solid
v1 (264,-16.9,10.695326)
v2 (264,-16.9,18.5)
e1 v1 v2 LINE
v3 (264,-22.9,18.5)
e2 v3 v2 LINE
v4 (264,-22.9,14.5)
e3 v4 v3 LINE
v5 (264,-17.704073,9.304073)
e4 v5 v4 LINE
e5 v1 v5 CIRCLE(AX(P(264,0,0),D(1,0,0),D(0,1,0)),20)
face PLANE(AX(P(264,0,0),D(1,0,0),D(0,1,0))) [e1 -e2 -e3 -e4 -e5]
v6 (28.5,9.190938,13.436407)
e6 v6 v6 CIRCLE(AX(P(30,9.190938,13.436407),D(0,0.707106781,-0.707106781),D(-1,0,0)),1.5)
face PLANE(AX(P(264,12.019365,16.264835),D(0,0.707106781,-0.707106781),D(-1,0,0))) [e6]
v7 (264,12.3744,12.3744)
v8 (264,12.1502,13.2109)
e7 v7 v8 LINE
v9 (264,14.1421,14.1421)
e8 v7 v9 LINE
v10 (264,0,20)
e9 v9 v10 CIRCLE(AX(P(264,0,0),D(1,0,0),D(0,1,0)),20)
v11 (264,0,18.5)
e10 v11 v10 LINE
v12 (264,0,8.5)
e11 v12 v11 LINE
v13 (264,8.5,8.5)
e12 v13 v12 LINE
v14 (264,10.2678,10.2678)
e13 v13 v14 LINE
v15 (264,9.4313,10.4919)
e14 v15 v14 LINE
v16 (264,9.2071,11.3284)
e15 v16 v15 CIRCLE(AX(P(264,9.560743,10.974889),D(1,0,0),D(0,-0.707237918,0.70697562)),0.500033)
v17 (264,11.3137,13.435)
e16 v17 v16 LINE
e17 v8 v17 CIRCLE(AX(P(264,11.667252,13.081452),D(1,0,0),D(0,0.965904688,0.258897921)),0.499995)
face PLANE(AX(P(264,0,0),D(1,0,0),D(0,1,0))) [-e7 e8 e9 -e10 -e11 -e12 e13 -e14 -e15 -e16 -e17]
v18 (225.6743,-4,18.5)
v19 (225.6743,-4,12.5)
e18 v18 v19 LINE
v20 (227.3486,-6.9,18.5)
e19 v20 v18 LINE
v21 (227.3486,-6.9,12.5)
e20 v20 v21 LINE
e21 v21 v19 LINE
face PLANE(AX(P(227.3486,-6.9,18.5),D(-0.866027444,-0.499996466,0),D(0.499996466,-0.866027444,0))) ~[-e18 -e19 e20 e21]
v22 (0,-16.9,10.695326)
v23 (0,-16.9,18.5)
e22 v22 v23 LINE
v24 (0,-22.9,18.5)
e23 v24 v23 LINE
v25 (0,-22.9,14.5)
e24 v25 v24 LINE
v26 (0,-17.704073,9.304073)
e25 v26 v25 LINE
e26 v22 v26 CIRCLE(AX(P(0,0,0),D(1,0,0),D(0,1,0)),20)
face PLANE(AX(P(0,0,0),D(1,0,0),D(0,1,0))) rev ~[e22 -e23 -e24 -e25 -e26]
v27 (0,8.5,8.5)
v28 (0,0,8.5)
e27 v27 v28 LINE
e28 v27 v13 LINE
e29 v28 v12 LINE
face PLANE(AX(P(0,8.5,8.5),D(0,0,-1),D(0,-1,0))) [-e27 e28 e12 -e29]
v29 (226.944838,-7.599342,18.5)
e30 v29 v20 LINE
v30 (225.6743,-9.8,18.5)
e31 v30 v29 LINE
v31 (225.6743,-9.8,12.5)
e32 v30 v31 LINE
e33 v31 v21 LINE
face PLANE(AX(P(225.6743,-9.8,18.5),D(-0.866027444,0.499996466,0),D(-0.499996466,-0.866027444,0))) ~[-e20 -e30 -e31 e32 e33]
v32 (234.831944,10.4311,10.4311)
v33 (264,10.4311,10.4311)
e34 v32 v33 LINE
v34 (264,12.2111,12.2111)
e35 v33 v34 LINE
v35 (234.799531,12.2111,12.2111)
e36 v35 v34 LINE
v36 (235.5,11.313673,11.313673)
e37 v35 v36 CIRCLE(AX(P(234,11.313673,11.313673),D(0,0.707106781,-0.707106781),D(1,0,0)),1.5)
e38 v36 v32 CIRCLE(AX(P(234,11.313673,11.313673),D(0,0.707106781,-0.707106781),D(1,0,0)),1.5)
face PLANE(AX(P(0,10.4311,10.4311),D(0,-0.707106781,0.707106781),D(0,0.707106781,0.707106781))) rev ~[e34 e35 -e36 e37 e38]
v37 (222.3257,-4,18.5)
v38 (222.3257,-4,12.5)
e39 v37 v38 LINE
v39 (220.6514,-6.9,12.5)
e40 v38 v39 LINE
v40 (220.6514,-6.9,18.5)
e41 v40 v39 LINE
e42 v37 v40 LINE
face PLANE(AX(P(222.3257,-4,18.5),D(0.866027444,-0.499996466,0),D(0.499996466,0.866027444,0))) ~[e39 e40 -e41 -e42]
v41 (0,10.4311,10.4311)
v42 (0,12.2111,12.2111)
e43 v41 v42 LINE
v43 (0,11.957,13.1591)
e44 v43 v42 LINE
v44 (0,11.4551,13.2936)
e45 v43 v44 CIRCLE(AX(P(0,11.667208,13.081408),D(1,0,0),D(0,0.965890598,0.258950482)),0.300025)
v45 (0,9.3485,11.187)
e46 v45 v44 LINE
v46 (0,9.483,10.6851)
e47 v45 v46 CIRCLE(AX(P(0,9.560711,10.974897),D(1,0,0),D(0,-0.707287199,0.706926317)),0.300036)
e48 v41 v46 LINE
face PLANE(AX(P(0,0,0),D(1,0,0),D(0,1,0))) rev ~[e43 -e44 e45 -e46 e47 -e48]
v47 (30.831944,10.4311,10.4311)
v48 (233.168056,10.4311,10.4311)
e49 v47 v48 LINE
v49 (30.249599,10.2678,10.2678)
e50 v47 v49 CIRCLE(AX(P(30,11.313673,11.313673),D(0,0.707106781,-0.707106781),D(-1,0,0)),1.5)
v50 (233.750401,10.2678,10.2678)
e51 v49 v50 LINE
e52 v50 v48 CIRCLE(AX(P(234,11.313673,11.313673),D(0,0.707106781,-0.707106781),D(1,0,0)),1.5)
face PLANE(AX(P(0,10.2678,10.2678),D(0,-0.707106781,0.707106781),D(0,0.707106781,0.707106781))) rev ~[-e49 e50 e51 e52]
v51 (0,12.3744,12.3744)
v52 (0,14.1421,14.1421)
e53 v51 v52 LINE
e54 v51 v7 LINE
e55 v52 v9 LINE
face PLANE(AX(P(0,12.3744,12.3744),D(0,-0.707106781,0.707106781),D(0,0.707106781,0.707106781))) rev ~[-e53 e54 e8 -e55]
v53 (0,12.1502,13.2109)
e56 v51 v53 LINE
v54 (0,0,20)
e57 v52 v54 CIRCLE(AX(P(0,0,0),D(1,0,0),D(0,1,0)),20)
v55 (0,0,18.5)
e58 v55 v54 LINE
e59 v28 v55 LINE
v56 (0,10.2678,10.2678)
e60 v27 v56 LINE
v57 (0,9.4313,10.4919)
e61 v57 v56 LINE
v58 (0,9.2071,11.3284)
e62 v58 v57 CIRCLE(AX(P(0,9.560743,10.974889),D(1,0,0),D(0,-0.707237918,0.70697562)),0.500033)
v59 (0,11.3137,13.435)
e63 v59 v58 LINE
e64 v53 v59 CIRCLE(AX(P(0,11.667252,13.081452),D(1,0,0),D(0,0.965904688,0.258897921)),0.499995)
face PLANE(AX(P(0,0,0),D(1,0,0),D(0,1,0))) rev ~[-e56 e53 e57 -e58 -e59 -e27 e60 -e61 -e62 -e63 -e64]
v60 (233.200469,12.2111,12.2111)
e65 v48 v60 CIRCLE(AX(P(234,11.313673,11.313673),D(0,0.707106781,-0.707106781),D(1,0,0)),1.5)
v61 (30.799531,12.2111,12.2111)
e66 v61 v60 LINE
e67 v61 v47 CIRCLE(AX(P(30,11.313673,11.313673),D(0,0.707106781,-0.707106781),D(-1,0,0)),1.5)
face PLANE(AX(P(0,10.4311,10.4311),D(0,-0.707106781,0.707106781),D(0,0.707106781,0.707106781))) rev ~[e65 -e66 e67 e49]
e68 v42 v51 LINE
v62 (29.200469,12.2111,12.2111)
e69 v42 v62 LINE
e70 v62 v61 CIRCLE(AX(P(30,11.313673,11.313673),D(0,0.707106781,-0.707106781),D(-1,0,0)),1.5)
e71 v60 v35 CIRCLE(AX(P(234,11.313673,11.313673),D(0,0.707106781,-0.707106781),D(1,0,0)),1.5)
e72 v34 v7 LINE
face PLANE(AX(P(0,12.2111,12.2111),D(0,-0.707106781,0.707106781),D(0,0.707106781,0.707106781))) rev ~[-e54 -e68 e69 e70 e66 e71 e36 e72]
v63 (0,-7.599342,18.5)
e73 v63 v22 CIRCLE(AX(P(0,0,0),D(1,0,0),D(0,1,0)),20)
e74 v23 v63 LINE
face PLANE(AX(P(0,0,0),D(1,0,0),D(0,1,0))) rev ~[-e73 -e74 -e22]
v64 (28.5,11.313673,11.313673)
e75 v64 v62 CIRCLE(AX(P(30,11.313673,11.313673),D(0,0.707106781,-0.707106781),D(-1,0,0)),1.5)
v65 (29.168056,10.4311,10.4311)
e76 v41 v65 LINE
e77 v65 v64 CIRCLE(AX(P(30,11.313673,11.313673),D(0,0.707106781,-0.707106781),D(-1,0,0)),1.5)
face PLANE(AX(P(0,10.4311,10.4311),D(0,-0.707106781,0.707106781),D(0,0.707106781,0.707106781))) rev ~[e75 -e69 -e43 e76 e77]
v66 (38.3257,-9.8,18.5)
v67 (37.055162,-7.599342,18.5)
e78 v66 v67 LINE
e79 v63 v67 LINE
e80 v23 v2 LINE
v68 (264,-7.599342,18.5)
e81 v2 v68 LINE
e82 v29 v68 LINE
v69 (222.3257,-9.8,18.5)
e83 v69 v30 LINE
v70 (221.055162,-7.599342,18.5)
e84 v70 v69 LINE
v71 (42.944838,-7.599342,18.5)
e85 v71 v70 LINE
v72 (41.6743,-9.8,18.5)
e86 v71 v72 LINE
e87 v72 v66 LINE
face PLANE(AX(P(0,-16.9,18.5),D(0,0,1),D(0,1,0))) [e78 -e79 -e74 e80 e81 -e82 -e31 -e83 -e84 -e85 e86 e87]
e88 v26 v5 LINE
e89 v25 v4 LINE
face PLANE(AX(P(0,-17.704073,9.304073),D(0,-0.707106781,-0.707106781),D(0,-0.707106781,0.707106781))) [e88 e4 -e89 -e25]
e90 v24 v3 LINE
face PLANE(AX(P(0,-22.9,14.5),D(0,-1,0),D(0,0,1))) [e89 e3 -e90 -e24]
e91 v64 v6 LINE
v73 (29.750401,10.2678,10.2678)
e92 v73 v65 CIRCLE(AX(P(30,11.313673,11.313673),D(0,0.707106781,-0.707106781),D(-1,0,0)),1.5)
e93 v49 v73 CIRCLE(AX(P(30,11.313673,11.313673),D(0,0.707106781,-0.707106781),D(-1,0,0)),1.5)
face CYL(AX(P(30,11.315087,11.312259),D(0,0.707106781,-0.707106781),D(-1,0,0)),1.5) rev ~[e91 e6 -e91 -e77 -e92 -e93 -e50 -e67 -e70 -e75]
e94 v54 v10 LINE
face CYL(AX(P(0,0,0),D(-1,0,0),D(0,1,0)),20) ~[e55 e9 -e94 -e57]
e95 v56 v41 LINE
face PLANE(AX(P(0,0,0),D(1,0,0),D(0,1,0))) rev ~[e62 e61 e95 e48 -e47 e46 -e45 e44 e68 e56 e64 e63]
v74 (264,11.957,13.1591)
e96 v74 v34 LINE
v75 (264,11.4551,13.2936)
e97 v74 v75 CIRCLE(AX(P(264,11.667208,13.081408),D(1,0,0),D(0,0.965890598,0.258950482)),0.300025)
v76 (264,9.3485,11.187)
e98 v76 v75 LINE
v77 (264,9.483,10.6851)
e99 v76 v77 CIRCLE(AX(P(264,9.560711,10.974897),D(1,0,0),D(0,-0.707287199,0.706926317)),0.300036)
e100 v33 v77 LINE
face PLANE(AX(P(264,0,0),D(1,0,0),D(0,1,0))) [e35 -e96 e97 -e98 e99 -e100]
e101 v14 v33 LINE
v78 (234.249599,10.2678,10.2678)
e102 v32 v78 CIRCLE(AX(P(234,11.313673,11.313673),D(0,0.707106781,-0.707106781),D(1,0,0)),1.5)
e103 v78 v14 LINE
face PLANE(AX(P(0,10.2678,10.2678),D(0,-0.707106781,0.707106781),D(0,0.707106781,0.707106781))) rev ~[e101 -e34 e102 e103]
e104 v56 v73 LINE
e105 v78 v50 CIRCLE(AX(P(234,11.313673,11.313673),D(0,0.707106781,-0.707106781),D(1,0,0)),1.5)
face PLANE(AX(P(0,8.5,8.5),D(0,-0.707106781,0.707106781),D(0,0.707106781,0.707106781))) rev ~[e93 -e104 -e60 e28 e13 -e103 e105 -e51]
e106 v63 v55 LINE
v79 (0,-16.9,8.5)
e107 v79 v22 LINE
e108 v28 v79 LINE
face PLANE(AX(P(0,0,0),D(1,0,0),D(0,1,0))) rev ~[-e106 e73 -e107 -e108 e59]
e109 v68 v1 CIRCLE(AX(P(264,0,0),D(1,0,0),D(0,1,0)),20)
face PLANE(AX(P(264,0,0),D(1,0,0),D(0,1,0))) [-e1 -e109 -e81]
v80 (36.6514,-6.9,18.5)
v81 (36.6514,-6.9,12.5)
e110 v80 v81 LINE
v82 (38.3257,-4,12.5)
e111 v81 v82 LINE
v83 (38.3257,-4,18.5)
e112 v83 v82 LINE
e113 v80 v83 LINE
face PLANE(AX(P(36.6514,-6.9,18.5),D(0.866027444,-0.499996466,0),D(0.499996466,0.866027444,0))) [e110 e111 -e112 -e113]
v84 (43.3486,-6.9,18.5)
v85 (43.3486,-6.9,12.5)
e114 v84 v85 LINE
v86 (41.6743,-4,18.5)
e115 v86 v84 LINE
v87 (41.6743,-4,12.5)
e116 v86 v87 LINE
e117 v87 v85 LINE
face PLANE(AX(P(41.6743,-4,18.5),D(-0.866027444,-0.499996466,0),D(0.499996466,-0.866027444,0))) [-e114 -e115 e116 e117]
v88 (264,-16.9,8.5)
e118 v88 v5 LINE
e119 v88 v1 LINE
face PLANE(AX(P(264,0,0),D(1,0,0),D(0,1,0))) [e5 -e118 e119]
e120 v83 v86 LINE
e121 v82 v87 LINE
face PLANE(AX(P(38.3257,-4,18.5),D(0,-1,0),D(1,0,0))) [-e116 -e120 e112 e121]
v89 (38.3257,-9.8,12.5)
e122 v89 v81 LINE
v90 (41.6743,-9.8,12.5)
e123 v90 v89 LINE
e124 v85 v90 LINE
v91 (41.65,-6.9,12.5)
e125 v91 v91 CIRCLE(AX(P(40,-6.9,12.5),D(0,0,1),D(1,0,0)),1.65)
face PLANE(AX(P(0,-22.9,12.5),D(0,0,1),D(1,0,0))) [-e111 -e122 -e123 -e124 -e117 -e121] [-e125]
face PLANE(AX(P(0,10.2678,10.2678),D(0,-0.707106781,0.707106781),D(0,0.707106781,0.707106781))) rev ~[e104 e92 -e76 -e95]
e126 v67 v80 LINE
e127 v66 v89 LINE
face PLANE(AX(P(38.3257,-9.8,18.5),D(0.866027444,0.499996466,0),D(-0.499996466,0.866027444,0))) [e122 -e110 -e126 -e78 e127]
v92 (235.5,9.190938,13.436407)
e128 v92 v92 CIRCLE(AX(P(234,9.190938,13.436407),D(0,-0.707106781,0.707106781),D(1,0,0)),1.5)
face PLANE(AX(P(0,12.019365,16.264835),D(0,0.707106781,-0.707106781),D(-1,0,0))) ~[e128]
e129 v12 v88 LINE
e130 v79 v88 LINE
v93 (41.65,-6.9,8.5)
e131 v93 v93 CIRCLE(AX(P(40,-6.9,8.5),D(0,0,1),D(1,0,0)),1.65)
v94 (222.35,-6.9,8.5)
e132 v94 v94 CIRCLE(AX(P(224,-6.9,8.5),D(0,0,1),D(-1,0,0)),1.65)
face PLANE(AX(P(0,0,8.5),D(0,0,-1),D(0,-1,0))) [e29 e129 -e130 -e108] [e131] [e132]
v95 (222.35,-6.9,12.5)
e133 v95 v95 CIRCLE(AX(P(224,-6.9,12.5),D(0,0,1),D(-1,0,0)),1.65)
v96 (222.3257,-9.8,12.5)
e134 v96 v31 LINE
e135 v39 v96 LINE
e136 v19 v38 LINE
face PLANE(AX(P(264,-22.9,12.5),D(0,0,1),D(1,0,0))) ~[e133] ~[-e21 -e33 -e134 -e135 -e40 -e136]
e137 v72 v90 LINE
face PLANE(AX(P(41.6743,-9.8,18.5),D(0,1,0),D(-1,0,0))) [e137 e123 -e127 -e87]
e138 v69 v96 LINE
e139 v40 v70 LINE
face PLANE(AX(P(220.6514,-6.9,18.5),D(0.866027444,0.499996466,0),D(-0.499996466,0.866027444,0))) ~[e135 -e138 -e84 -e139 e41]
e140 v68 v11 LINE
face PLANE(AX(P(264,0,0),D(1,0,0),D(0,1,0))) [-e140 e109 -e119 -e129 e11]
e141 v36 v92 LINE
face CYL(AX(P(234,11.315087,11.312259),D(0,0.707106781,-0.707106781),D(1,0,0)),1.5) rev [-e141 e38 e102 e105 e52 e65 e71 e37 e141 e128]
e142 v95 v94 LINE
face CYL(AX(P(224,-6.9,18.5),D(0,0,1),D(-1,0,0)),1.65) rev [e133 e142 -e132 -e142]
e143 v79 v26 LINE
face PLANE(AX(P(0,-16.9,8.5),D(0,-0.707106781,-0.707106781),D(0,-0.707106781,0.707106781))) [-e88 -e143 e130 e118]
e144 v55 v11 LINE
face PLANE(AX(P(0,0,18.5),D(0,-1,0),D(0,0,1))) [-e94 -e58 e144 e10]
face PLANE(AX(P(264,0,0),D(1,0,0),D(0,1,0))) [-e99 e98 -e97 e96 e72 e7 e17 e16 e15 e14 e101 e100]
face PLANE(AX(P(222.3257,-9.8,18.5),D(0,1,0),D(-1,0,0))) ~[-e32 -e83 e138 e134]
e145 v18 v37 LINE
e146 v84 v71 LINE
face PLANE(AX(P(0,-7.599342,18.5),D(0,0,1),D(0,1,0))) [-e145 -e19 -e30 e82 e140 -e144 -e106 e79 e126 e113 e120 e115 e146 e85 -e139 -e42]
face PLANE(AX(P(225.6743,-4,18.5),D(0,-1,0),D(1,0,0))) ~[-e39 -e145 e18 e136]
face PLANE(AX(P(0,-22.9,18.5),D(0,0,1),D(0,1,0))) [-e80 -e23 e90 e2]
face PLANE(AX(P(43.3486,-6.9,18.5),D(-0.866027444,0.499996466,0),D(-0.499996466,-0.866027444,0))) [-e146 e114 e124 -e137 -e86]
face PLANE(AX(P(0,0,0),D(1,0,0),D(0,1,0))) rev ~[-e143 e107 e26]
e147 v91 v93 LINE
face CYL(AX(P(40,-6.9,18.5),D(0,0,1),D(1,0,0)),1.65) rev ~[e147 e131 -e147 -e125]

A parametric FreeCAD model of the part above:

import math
import FreeCAD as App
import Part
import Sketcher
from FreeCAD import Vector
Q = App.Units.Quantity


def add_polygon(sketch, points):
    """Adds a closed chain of lines whose ends are joined by coincident constraints."""
    first, n = sketch.GeometryCount, len(points)
    for a, b in zip(points, points[1:] + points[:1]):
        sketch.addGeometry(Part.LineSegment(App.Vector(*a, 0), App.Vector(*b, 0)), False)
    for i in range(n):
        sketch.addConstraint(Sketcher.Constraint("Coincident", first + i, 2, first + (i + 1) % n, 1))

doc = App.newDocument("Part")
body = doc.addObject("PartDesign::Body", "Body")

# Sketch on YZ plane
sketch1 = doc.addObject("Sketcher::SketchObject", "Sketch")
body.addObject(sketch1)
sketch1.AttachmentSupport = (doc.YZ_Plane, [""])
sketch1.MapMode = "FlatFace"
sketch1.addGeometry([
    Part.ArcOfCircle(Part.Circle(Vector(0, 0, 0), Vector(0, 0, 1), 20), math.radians(45), math.radians(90)),  # 0
    Part.LineSegment(Vector(0, 20, 0), Vector(0, 18.5, 0)),  # 1
    Part.LineSegment(Vector(0, 18.5, 0), Vector(-22.9, 18.5, 0)),  # 2
    Part.LineSegment(Vector(-22.9, 18.5, 0), Vector(-22.9, 14.5, 0)),  # 3
    Part.LineSegment(Vector(-22.9, 14.5, 0), Vector(-16.9, 8.5, 0)),  # 4
    Part.LineSegment(Vector(-16.9, 8.5, 0), Vector(8.5, 8.5, 0)),  # 5
    Part.LineSegment(Vector(8.5, 8.5, 0), Vector(14.1, 14.1, 0)),  # 6
], False)
sketch1.addConstraint([
    Sketcher.Constraint("Coincident", 0, 2, 1, 1),
    Sketcher.Constraint("Coincident", 1, 2, 2, 1),
    Sketcher.Constraint("Coincident", 2, 2, 3, 1),
    Sketcher.Constraint("Coincident", 3, 2, 4, 1),
    Sketcher.Constraint("Coincident", 4, 2, 5, 1),
    Sketcher.Constraint("Coincident", 5, 2, 6, 1),
    Sketcher.Constraint("Coincident", 6, 2, 0, 1),
    Sketcher.Constraint("Vertical", 1),
    Sketcher.Constraint("Horizontal", 2),
    Sketcher.Constraint("Vertical", 3),
    Sketcher.Constraint("Horizontal", 5),
    Sketcher.Constraint("Coincident", 0, 3, -1, 1),
    Sketcher.Constraint("PointOnObject", 0, 2, -2),
    Sketcher.Constraint("Perpendicular", 4, 6),
    Sketcher.Constraint("Radius", 0, 20.0),
    Sketcher.Constraint("DistanceY", 3, 2, 3, 1, 4.0),
    Sketcher.Constraint("Angle", 4, Q("-45 deg")),
    Sketcher.Constraint("DistanceX", 5, 1, 5, 2, 25.4),
    Sketcher.Constraint("DistanceY", 1, 2, 1, 1, 1.5),
    Sketcher.Constraint("DistanceY", 4, 2, 2, 2, 10.0),
    Sketcher.Constraint("DistanceX", 2, 2, 2, 1, 22.9),
])
pad1 = doc.addObject("PartDesign::Pad", "Pad")
body.addObject(pad1)
pad1.Profile = sketch1
pad1.Length = 264

# Sketch on XY plane
sketch2 = doc.addObject("Sketcher::SketchObject", "Sketch001")
body.addObject(sketch2)
sketch2.AttachmentSupport = (doc.XY_Plane, [""])
sketch2.MapMode = "FlatFace"
sketch2.AttachmentOffset = App.Placement(Vector(0, 0, 18.5), App.Rotation())
add_polygon(sketch2, [(36.7, -6.9), (38.3, -9.8), (41.7, -9.8), (43.3, -6.9), (41.7, -4), (38.3, -4)])  # lines 0-5
sketch2.addConstraint([
    Sketcher.Constraint("Horizontal", 1),
    Sketcher.Constraint("Horizontal", 4),
    Sketcher.Constraint("Parallel", 0, 3),
    Sketcher.Constraint("Parallel", 2, 5),
    Sketcher.Constraint("Horizontal", 2, 2, 5, 2),
    Sketcher.Constraint("Vertical", 1, 2, 3, 2),
    Sketcher.Constraint("Vertical", 0, 2, 4, 2),
    Sketcher.Constraint("DistanceY", 1, 2, 3, 2, 5.8),
    Sketcher.Constraint("Angle", 0, Q("-60.0002 deg")),
    Sketcher.Constraint("DistanceY", 3, 2, -1, 1, 4.0),
    Sketcher.Constraint("DistanceX", 1, 1, 1, 2, 3.3486),
    Sketcher.Constraint("DistanceX", -1, 1, 0, 2, 38.3257),
])
pocket1 = doc.addObject("PartDesign::Pocket", "Pocket")
body.addObject(pocket1)
pocket1.Profile = sketch2
pocket1.Length = 6

# Sketch on XY plane
sketch3 = doc.addObject("Sketcher::SketchObject", "Sketch002")
body.addObject(sketch3)
sketch3.AttachmentSupport = (doc.XY_Plane, [""])
sketch3.MapMode = "FlatFace"
sketch3.AttachmentOffset = App.Placement(Vector(0, 0, 18.5), App.Rotation())
sketch3.addGeometry(Part.Circle(Vector(40, -6.9, 0), Vector(0, 0, 1), 1.6), False)
sketch3.addConstraint([
    Sketcher.Constraint("Diameter", 0, 3.3),
    Sketcher.Constraint("DistanceX", -1, 1, 0, 3, 40.0),
    Sketcher.Constraint("DistanceY", 0, 3, -1, 1, 6.9),
])
pocket2 = doc.addObject("PartDesign::Pocket", "Pocket001")
body.addObject(pocket2)
pocket2.Profile = sketch3
pocket2.Type = "ThroughAll"

# Sketch on an angled plane
sketch4 = doc.addObject("Sketcher::SketchObject", "Sketch003")
body.addObject(sketch4)
sketch4.Placement = App.Placement(Vector(264, 14.1421, 14.1421), App.Rotation(Vector(-1, 0, 0), Vector(0, 0.707106781, 0.707106781), Vector(0, 0.707106781, -0.707106781), "ZXY"))
sketch4.addGeometry(Part.Circle(Vector(234, -4, 0), Vector(0, 0, 1), 1.5), False)
sketch4.addConstraint([
    Sketcher.Constraint("Diameter", 0, 3.0),
    Sketcher.Constraint("DistanceY", 0, 3, -1, 1, 4.0),
    Sketcher.Constraint("DistanceX", -1, 1, 0, 3, 234.0),
])
pocket3 = doc.addObject("PartDesign::Pocket", "Pocket002")
body.addObject(pocket3)
pocket3.Profile = sketch4
pocket3.Length = 3
doc.recompute()

datumplane = doc.addObject("PartDesign::Plane", "DatumPlane")
body.addObject(datumplane)
datumplane.AttachmentSupport = (doc.YZ_Plane, [""])
datumplane.MapMode = "FlatFace"
datumplane.AttachmentOffset = App.Placement(Vector(0, 0, 132), App.Rotation())
mirrored = doc.addObject("PartDesign::Mirrored", "Mirrored")
body.addObject(mirrored)
mirrored.Originals = [pocket3, pocket1, pocket2]
mirrored.MirrorPlane = (datumplane, [""])
body.Tip = mirrored

doc.recompute()
